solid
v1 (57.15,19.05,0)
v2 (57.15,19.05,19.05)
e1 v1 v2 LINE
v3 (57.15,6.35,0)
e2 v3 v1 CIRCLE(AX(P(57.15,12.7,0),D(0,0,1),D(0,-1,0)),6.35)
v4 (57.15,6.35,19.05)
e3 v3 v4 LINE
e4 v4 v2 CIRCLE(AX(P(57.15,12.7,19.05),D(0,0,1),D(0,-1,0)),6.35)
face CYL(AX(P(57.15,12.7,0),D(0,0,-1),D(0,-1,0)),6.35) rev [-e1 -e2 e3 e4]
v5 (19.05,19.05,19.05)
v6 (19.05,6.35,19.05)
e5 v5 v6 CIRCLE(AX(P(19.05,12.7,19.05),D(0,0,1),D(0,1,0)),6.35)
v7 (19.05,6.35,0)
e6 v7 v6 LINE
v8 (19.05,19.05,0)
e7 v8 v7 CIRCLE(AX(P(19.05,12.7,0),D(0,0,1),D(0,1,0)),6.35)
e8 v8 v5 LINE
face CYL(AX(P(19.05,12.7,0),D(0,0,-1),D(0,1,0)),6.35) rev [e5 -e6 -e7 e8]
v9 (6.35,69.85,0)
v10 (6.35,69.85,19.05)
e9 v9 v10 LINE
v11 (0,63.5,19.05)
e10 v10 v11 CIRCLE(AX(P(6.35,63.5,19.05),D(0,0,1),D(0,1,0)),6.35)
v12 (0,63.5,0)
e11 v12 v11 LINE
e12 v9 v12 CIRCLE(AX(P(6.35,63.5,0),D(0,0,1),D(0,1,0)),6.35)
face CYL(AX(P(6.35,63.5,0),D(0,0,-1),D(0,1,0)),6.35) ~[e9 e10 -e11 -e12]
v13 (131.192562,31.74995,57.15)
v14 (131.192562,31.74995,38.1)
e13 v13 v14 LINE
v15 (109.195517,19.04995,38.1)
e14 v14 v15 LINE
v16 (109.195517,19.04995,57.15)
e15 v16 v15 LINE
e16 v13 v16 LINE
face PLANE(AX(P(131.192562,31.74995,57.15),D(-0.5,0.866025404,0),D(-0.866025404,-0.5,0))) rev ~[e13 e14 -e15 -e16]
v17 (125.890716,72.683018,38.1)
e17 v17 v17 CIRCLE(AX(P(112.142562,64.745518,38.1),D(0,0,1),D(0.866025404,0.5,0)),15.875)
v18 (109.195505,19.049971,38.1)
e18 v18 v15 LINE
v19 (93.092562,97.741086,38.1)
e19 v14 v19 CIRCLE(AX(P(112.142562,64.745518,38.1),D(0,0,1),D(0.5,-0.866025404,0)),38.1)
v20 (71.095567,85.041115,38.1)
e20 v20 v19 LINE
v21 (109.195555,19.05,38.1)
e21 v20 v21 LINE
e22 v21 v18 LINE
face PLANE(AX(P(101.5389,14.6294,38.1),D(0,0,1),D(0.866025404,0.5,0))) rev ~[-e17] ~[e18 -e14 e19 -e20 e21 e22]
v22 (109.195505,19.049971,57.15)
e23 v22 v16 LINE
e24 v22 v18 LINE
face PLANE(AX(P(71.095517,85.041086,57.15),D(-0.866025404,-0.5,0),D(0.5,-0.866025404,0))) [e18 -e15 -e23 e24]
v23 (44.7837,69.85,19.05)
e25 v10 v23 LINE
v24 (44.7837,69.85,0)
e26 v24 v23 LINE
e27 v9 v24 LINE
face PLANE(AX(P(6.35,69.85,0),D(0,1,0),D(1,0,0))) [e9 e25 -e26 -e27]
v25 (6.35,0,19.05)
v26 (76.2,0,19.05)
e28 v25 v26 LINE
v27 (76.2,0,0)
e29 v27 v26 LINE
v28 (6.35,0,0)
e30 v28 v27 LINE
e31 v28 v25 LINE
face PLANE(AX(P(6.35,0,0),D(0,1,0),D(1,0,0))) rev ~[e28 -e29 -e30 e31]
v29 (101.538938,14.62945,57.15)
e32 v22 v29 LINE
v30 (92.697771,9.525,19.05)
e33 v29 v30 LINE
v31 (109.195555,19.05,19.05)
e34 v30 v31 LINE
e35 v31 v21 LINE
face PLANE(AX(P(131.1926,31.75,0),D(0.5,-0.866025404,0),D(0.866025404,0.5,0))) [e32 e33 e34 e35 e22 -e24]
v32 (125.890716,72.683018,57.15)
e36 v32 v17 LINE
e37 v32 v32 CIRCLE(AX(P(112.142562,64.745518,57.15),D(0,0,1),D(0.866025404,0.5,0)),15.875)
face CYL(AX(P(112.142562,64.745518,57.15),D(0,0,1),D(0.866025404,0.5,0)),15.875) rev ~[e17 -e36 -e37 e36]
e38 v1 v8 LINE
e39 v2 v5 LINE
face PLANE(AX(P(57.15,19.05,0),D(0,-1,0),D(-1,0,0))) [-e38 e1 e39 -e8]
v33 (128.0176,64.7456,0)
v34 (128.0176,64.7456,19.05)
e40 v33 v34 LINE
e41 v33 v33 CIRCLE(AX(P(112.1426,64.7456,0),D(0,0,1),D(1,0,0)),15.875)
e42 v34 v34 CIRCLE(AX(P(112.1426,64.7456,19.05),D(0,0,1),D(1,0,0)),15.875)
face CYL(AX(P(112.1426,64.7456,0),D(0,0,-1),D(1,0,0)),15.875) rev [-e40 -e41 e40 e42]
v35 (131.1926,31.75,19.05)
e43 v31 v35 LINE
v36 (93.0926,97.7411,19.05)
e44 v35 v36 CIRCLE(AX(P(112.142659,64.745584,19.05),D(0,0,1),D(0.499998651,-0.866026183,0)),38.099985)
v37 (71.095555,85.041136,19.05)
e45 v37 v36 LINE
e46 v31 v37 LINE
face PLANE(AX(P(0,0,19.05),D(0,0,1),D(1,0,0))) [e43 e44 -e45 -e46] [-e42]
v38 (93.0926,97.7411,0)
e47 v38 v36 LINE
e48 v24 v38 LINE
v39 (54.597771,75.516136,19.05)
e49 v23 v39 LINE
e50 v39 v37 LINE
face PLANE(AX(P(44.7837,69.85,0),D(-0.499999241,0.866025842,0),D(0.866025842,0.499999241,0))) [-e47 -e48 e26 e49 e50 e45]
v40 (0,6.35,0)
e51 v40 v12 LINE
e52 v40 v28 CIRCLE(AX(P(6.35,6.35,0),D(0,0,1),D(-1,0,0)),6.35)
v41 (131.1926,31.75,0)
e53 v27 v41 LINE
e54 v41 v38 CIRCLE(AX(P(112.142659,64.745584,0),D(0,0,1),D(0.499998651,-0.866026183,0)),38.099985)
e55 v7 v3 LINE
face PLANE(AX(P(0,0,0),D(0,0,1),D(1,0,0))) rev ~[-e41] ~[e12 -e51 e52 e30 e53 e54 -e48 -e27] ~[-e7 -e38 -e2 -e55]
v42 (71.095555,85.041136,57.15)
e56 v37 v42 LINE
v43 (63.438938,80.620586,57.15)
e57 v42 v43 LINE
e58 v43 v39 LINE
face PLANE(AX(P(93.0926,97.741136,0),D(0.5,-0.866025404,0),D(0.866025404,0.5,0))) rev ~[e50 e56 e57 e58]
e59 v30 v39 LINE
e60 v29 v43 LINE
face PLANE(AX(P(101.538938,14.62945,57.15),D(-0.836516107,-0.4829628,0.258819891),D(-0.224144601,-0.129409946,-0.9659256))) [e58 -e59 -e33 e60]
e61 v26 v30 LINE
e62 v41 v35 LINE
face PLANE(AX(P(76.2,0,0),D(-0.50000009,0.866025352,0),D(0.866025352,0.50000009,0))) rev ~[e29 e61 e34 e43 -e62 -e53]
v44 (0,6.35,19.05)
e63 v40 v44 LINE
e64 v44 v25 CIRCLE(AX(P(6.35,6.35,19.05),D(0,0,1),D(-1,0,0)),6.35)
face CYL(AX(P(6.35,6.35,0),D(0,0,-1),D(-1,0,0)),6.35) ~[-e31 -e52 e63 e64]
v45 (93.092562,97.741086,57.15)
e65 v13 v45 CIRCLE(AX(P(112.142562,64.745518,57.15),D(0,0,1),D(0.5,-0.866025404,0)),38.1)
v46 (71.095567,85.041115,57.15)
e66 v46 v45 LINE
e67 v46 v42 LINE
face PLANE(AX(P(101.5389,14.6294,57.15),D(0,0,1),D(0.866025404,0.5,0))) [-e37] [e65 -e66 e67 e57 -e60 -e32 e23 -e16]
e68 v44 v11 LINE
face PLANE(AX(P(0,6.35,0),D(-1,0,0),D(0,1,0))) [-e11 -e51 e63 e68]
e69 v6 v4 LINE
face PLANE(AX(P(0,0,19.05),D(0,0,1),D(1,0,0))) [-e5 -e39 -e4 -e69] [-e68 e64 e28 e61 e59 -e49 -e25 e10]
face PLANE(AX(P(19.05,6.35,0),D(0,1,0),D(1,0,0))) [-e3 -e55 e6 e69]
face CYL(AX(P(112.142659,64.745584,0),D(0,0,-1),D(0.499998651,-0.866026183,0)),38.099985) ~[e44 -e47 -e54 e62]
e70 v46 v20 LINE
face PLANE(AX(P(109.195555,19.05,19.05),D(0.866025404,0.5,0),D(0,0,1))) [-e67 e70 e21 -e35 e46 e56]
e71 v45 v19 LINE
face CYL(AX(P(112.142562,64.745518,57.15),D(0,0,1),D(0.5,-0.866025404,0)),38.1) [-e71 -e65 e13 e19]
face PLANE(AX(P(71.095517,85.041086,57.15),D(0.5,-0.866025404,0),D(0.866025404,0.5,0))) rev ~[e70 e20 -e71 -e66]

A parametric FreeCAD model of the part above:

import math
import FreeCAD as App
import Part
import Sketcher
from FreeCAD import Vector
Q = App.Units.Quantity

doc = App.newDocument("Part")
body = doc.addObject("PartDesign::Body", "Body")

# Sketch on XY plane
sketch1 = doc.addObject("Sketcher::SketchObject", "Sketch")
body.addObject(sketch1)
sketch1.AttachmentSupport = (doc.XY_Plane, [""])
sketch1.MapMode = "FlatFace"
sketch1.addGeometry([
    Part.ArcOfCircle(Part.Circle(Vector(6, 6, 0), Vector(0, 0, 1), 6), math.radians(180), math.radians(270)),  # 0
    Part.LineSegment(Vector(6, 0, 0), Vector(76, 0, 0)),  # 1
    Part.LineSegment(Vector(76, 0, 0), Vector(131, 32, 0)),  # 2
    Part.ArcOfCircle(Part.Circle(Vector(112, 65, 0), Vector(0, 0, 1), 38), math.radians(-60), math.radians(120)),  # 3
    Part.LineSegment(Vector(93, 98, 0), Vector(45, 70, 0)),  # 4
    Part.LineSegment(Vector(45, 70, 0), Vector(6, 70, 0)),  # 5
    Part.ArcOfCircle(Part.Circle(Vector(6, 64, 0), Vector(0, 0, 1), 6), math.radians(90), math.radians(180)),  # 6
    Part.LineSegment(Vector(0, 64, 0), Vector(0, 6, 0)),  # 7
    Part.LineSegment(Vector(57, 6, 0), Vector(19, 6, 0)),  # 8
    Part.ArcOfCircle(Part.Circle(Vector(19, 13, 0), Vector(0, 0, 1), 6), math.radians(90), math.radians(270)),  # 9
    Part.LineSegment(Vector(19, 19, 0), Vector(57, 19, 0)),  # 10
    Part.ArcOfCircle(Part.Circle(Vector(57, 13, 0), Vector(0, 0, 1), 6), math.radians(-90), math.radians(90)),  # 11
    Part.Circle(Vector(112, 65, 0), Vector(0, 0, 1), 16),  # 12
], False)
sketch1.addConstraint([
    Sketcher.Constraint("Tangent", 0, 2, 1, 1),
    Sketcher.Constraint("Coincident", 1, 2, 2, 1),
    Sketcher.Constraint("Tangent", 2, 2, 3, 1),
    Sketcher.Constraint("Tangent", 3, 2, 4, 1),
    Sketcher.Constraint("Coincident", 4, 2, 5, 1),
    Sketcher.Constraint("Tangent", 5, 2, 6, 1),
    Sketcher.Constraint("Tangent", 6, 2, 7, 1),
    Sketcher.Constraint("Tangent", 7, 2, 0, 1),
    Sketcher.Constraint("Tangent", 8, 2, 9, 2),
    Sketcher.Constraint("Tangent", 9, 1, 10, 1),
    Sketcher.Constraint("Tangent", 10, 2, 11, 2),
    Sketcher.Constraint("Tangent", 11, 1, 8, 1),
    Sketcher.Constraint("Horizontal", 1),
    Sketcher.Constraint("Horizontal", 5),
    Sketcher.Constraint("Vertical", 7),
    Sketcher.Constraint("Horizontal", 8),
    Sketcher.Constraint("Horizontal", 10),
    Sketcher.Constraint("Coincident", 12, 3, 3, 3),
    Sketcher.Constraint("Equal", 0, 6),
    Sketcher.Constraint("Equal", 6, 9),
    Sketcher.Constraint("PointOnObject", 0, 2, -1),
    Sketcher.Constraint("PointOnObject", 6, 2, -2),
    Sketcher.Constraint("Parallel", 2, 4),
    Sketcher.Constraint("Horizontal", 7, 2, 8, 2),
    Sketcher.Constraint("Radius", 3, Q("1.5 in")),
    Sketcher.Constraint("Diameter", 12, Q("1.25 in")),
    Sketcher.Constraint("Radius", 0, Q("0.25 in")),
    Sketcher.Constraint("DistanceX", 8, 2, 8, 1, Q("1.5 in")),
    Sketcher.Constraint("DistanceX", -1, 1, 1, 2, Q("3 in")),
    Sketcher.Constraint("Angle", 2, Q("30 deg")),
    Sketcher.Constraint("Distance", 2, Q("2.5 in")),
    Sketcher.Constraint("DistanceY", -1, 1, 6, 3, Q("2.5 in")),
    Sketcher.Constraint("DistanceX", 0, 3, 9, 3, Q("0.5 in")),
])
pad1 = doc.addObject("PartDesign::Pad", "Pad")
body.addObject(pad1)
pad1.Profile = sketch1
pad1.Length = Q("0.75 in")

# Sketch on an angled plane
sketch2 = doc.addObject("Sketcher::SketchObject", "Sketch001")
body.addObject(sketch2)
sketch2.Placement = App.Placement(Vector(131.1926, 31.75, 0), App.Rotation(Vector(0.866025404, 0.5, 0), Vector(0, 0, 1), Vector(0.5, -0.866025404, 0), "ZXY"))
sketch2.addGeometry([
    Part.LineSegment(Vector(-34, 57, 0), Vector(-44, 19, 0)),
    Part.LineSegment(Vector(-44, 19, 0), Vector(-25, 19, 0)),
    Part.LineSegment(Vector(-25, 19, 0), Vector(-25, 57, 0)),
    Part.LineSegment(Vector(-25, 57, 0), Vector(-34, 57, 0)),
], False)
sketch2.addConstraint([
    Sketcher.Constraint("Coincident", 0, 2, 1, 1),
    Sketcher.Constraint("Coincident", 1, 2, 2, 1),
    Sketcher.Constraint("Coincident", 2, 2, 3, 1),
    Sketcher.Constraint("Coincident", 3, 2, 0, 1),
    Sketcher.Constraint("Horizontal", 1),
    Sketcher.Constraint("Vertical", 2),
    Sketcher.Constraint("Horizontal", 3),
    Sketcher.Constraint("DistanceY", 2, 1, 2, 2, Q("1.5 in")),
    Sketcher.Constraint("DistanceX", 1, 1, 1, 2, Q("0.75 in")),
    Sketcher.Constraint("DistanceY", -1, 1, 0, 2, Q("0.75 in")),
    Sketcher.Constraint("DistanceX", 1, 2, -1, 1, Q("1 in")),
    Sketcher.Constraint("Angle", 0, Q("-105 deg")),
])
pad2 = doc.addObject("PartDesign::Pad", "Pad001")
body.addObject(pad2)
pad2.Profile = sketch2
pad2.Length = Q("3 in")
pad2.Reversed = True

# Sketch on XY plane
sketch3 = doc.addObject("Sketcher::SketchObject", "Sketch002")
body.addObject(sketch3)
sketch3.AttachmentSupport = (doc.XY_Plane, [""])
sketch3.MapMode = "FlatFace"
sketch3.AttachmentOffset = App.Placement(Vector(0, 0, 2.25 * 25.4), App.Rotation())
sketch3.addGeometry([
    Part.LineSegment(Vector(109, 19, 0), Vector(131, 32, 0)),  # 0
    Part.ArcOfCircle(Part.Circle(Vector(112, 65, 0), Vector(0, 0, 1), 38), math.radians(-60), math.radians(120)),  # 1
    Part.LineSegment(Vector(93, 98, 0), Vector(71, 85, 0)),  # 2
    Part.LineSegment(Vector(71, 85, 0), Vector(109, 19, 0)),  # 3
    Part.Circle(Vector(112, 65, 0), Vector(0, 0, 1), 16),  # 4
], False)
sketch3.addConstraint([
    Sketcher.Constraint("Tangent", 0, 2, 1, 1),
    Sketcher.Constraint("Tangent", 1, 2, 2, 1),
    Sketcher.Constraint("Coincident", 2, 2, 3, 1),
    Sketcher.Constraint("Coincident", 3, 2, 0, 1),
    Sketcher.Constraint("Coincident", 4, 3, 1, 3),
    Sketcher.Constraint("Parallel", 0, 2),
    Sketcher.Constraint("Perpendicular", 2, 3),
    Sketcher.Constraint("Radius", 1, Q("1.5 in")),
    Sketcher.Constraint("Diameter", 4, Q("1.25 in")),
    Sketcher.Constraint("DistanceY", -1, 1, 0, 2, Q("1.25 in")),
    Sketcher.Constraint("Distance", 0, Q("1 in")),
    Sketcher.Constraint("Angle", 0, Q("30 deg")),
    Sketcher.Constraint("DistanceX", -1, 1, 1, 3, 112.1426),
])
pad3 = doc.addObject("PartDesign::Pad", "Pad002")
body.addObject(pad3)
pad3.Profile = sketch3
pad3.Length = Q("0.75 in")
pad3.Reversed = True

doc.recompute()
